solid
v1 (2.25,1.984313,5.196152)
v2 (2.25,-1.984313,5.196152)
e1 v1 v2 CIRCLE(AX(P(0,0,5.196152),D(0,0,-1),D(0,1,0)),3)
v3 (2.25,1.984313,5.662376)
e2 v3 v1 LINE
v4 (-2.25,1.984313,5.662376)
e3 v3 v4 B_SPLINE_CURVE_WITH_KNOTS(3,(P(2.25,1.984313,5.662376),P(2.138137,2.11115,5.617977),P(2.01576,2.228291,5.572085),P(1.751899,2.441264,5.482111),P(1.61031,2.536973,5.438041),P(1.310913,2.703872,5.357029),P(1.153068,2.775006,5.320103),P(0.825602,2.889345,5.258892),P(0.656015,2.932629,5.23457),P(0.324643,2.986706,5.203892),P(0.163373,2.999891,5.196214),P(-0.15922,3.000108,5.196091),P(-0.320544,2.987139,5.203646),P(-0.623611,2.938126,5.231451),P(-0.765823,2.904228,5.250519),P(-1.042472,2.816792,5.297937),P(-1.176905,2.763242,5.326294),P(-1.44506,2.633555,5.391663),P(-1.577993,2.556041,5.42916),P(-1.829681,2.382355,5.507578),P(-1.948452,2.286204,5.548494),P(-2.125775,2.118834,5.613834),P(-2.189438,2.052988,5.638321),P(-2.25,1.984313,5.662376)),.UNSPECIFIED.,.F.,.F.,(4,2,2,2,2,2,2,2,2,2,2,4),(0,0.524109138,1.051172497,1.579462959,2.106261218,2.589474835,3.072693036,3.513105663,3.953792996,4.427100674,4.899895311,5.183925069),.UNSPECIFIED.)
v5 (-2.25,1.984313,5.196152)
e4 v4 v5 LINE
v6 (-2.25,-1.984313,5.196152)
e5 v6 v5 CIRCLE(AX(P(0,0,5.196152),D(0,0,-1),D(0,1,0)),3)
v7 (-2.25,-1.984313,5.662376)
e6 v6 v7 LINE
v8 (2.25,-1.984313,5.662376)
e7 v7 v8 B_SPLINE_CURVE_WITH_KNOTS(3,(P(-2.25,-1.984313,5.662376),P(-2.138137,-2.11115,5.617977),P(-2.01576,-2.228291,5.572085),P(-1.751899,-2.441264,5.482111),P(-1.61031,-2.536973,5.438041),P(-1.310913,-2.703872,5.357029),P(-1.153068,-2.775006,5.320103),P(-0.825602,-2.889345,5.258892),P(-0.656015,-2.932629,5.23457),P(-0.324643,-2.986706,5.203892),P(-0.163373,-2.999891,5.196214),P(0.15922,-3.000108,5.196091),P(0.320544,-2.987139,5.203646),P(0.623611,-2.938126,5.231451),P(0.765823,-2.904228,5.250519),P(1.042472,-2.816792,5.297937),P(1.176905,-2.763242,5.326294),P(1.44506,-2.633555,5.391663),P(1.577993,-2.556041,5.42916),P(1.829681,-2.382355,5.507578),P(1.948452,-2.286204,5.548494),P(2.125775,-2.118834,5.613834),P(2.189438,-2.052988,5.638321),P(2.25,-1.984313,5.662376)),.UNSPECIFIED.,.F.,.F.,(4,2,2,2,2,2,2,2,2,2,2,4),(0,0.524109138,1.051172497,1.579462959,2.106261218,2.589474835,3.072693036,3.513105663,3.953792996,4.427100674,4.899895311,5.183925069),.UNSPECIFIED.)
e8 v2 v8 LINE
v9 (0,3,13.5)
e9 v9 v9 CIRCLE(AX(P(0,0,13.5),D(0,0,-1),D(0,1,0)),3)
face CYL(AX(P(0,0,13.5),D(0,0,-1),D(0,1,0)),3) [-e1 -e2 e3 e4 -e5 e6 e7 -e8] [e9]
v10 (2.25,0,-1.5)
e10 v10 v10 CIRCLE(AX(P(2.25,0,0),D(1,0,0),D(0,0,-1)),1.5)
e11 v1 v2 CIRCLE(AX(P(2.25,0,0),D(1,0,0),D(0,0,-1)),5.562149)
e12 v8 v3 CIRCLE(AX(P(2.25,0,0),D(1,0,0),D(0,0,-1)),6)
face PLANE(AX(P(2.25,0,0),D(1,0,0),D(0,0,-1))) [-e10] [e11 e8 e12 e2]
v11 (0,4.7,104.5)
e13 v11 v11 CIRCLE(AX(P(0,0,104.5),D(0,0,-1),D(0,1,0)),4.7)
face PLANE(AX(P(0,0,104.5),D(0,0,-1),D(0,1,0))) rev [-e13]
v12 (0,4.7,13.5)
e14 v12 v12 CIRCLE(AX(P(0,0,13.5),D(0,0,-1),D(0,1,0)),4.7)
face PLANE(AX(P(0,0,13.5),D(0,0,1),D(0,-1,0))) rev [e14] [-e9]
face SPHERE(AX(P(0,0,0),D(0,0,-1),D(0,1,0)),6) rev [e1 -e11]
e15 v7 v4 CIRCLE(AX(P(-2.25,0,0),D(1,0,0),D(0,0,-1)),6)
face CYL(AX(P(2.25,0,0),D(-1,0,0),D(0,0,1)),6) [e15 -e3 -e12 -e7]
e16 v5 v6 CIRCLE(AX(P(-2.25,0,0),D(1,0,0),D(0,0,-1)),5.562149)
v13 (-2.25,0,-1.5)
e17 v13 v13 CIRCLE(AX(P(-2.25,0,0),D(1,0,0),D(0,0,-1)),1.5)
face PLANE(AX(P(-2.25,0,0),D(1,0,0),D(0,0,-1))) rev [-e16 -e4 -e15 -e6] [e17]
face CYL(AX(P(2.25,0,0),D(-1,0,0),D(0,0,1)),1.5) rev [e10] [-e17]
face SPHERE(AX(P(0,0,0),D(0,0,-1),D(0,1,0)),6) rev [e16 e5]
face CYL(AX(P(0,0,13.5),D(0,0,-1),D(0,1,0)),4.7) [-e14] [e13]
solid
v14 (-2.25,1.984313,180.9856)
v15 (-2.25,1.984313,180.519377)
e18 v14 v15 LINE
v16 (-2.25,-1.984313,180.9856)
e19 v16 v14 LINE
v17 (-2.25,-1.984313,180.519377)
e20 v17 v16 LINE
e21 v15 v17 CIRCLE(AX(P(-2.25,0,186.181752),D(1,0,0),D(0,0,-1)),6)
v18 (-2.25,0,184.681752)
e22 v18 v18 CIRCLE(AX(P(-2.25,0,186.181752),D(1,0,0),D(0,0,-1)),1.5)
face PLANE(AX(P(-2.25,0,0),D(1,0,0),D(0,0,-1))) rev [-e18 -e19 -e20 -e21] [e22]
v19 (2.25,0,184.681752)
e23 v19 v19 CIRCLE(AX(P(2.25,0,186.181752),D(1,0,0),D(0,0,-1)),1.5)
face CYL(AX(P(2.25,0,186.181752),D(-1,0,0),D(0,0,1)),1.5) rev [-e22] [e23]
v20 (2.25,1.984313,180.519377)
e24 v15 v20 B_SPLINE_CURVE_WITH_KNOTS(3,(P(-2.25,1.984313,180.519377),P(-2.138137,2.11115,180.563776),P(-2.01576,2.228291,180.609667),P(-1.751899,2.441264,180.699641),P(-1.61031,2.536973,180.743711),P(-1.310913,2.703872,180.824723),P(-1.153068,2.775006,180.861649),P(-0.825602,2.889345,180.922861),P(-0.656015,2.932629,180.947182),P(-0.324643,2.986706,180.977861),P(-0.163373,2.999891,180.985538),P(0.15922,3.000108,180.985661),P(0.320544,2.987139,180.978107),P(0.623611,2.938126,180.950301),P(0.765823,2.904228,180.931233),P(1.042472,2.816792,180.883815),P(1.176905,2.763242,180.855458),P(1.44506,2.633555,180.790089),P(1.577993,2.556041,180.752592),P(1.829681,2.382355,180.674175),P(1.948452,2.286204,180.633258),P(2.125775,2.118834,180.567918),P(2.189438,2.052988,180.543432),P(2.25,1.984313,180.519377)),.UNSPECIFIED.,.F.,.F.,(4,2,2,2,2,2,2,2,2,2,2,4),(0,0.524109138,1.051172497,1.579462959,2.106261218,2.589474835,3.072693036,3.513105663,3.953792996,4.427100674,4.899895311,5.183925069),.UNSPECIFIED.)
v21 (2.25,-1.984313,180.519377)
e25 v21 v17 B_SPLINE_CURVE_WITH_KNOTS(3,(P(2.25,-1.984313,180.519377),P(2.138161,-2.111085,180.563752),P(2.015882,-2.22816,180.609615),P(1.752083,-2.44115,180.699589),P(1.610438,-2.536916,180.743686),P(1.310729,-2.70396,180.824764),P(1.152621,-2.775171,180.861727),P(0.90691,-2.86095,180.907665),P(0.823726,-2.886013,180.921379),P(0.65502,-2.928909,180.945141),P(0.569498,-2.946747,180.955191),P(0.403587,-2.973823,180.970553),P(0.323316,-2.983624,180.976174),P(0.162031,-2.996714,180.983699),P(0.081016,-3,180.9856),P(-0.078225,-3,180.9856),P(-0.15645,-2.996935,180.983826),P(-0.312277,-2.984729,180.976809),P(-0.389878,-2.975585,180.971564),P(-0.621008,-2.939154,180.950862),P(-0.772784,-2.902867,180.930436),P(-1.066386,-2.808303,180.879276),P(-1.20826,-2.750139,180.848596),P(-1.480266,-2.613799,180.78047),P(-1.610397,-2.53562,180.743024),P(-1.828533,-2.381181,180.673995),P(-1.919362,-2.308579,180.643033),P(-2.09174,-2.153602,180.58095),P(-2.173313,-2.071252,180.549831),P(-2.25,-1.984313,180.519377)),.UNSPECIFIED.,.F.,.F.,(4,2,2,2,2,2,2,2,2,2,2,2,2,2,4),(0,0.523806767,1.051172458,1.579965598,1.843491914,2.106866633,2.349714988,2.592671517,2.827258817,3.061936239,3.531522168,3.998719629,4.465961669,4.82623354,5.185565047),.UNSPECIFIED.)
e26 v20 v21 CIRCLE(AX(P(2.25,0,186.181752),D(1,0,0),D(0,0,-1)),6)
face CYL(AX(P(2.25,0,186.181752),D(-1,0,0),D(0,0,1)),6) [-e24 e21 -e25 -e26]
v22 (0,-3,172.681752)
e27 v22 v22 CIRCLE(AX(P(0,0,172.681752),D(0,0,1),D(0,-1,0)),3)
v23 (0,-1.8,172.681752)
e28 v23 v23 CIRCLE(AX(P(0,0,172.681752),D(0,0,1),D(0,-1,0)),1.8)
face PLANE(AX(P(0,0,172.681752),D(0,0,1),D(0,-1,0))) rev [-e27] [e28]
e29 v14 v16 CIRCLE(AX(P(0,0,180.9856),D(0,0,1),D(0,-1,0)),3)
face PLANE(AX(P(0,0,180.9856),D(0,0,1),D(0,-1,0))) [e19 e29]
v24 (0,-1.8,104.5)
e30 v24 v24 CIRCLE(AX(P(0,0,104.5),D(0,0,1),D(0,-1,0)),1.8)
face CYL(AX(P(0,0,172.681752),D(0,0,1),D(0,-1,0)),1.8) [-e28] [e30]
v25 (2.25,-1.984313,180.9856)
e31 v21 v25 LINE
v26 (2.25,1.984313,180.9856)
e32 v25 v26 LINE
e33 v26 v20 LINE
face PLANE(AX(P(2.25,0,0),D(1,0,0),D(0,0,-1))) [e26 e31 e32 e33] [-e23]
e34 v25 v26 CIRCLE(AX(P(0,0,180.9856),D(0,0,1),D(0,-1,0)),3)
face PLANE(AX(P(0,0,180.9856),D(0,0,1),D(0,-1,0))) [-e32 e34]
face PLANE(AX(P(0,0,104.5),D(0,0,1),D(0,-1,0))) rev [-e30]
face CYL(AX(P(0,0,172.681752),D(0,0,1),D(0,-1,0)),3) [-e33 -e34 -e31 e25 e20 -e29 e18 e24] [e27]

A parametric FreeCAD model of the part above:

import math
import FreeCAD as App
import Part
import Sketcher
Q = App.Units.Quantity

doc = App.newDocument("Part")
params = doc.addObject("Spreadsheet::Sheet", "Params")
for row, (alias, value) in enumerate([
    ("sketch1_diameter", "12 mm"),
    ("sketch1_diameter2", "3 mm"),
    ("pad1_length", "4.5 mm"),
    ("sketch2_radius", "6 mm"),
    ("sketch2_height", "91 mm"),
    ("sketch2_width", "1.7 mm"),
    ("sketch2_width2", "4.7 mm"),
    ("sketch2_height2", "98.5 mm"),
    ("revolution_angle", "360 deg"),
    ("sketch3_diameter", "12 mm"),
    ("sketch3_diameter2", "3 mm"),
    ("pad2_length", "4.5 mm"),
    ("sketch4_width", "3 mm"),
    ("sketch4_width2", "1.8 mm"),
    ("revolution2_angle", "360 deg"),
], start=1):
    params.set(f"A{row}", alias)
    params.set(f"B{row}", "=" + value)
    params.setAlias(f"B{row}", alias)

body = doc.addObject("PartDesign::Body", "Body")

# Sketch on YZ plane
sketch1 = body.newObject("Sketcher::SketchObject", "Sketch")
sketch1.AttachmentSupport = (doc.getObject("YZ_Plane"), [""])
sketch1.MapMode = "FlatFace"
sketch1.addGeometry([
    Part.Circle(App.Vector(0, 0, 0), App.Vector(0, 0, 1), 6),
    Part.Circle(App.Vector(0, 0, 0), App.Vector(0, 0, 1), 1.5),
], False)
sketch1.addConstraint([
    Sketcher.Constraint("Coincident", 0, 3, -1, 1),
    Sketcher.Constraint("Coincident", 1, 3, -1, 1),
    Sketcher.Constraint("Diameter", 0, Q("12 mm")),
    Sketcher.Constraint("Diameter", 1, Q("3 mm")),
])
sketch1.setExpression("Constraints[2]", "Params.sketch1_diameter")
sketch1.setExpression("Constraints[3]", "Params.sketch1_diameter2")
pad1 = body.newObject("PartDesign::Pad", "Pad")
pad1.Profile = sketch1
pad1.setExpression("Length", "Params.pad1_length")
pad1.Midplane = True

# Sketch on YZ plane
sketch2 = body.newObject("Sketcher::SketchObject", "Sketch001")
sketch2.AttachmentSupport = (doc.getObject("YZ_Plane"), [""])
sketch2.MapMode = "FlatFace"
sketch2.addGeometry([
    Part.LineSegment(App.Vector(3, 13.5, 0), App.Vector(4.7, 13.5, 0)),  # 0
    Part.LineSegment(App.Vector(4.7, 13.5, 0), App.Vector(4.7, 104.5, 0)),  # 1
    Part.LineSegment(App.Vector(4.7, 104.5, 0), App.Vector(0, 104.5, 0)),  # 2
    Part.LineSegment(App.Vector(0, 104.5, 0), App.Vector(0, 6, 0)),  # 3
    Part.ArcOfCircle(Part.Circle(App.Vector(0, 0, 0), App.Vector(0, 0, 1), 6), math.radians(60), math.radians(90)),  # 4
    Part.LineSegment(App.Vector(3, 5.196152, 0), App.Vector(3, 13.5, 0)),  # 5
], False)
sketch2.addConstraint([
    Sketcher.Constraint("Coincident", 0, 2, 1, 1),
    Sketcher.Constraint("Coincident", 1, 2, 2, 1),
    Sketcher.Constraint("Coincident", 2, 2, 3, 1),
    Sketcher.Constraint("Coincident", 3, 2, 4, 2),
    Sketcher.Constraint("Coincident", 4, 1, 5, 1),
    Sketcher.Constraint("Coincident", 5, 2, 0, 1),
    Sketcher.Constraint("Horizontal", 0),
    Sketcher.Constraint("Vertical", 1),
    Sketcher.Constraint("Horizontal", 2),
    Sketcher.Constraint("Vertical", 3),
    Sketcher.Constraint("Vertical", 5),
    Sketcher.Constraint("Coincident", 4, 3, -1, 1),
    Sketcher.Constraint("PointOnObject", 2, 2, -2),
    Sketcher.Constraint("Radius", 4, Q("6 mm")),
    Sketcher.Constraint("DistanceY", 1, 1, 1, 2, Q("91 mm")),
    Sketcher.Constraint("DistanceX", 0, 1, 0, 2, Q("1.7 mm")),
    Sketcher.Constraint("DistanceX", 2, 2, 2, 1, Q("4.7 mm")),
    Sketcher.Constraint("DistanceY", 3, 2, 3, 1, Q("98.5 mm")),
])
sketch2.setExpression("Constraints[13]", "Params.sketch2_radius")
sketch2.setExpression("Constraints[14]", "Params.sketch2_height")
sketch2.setExpression("Constraints[15]", "Params.sketch2_width")
sketch2.setExpression("Constraints[16]", "Params.sketch2_width2")
sketch2.setExpression("Constraints[17]", "Params.sketch2_height2")
revolution = body.newObject("PartDesign::Revolution", "Revolution")
revolution.Profile = sketch2
revolution.ReferenceAxis = (sketch2, ["V_Axis"])
revolution.setExpression("Angle", "Params.revolution_angle")
body2 = doc.addObject("PartDesign::Body", "Body001")

# Sketch on YZ plane
sketch3 = body2.newObject("Sketcher::SketchObject", "Sketch002")
sketch3.AttachmentSupport = (doc.getObject("YZ_Plane001"), [""])
sketch3.MapMode = "FlatFace"
sketch3.addGeometry([
    Part.Circle(App.Vector(0, 186.181752, 0), App.Vector(0, 0, 1), 6),
    Part.Circle(App.Vector(0, 186.181752, 0), App.Vector(0, 0, 1), 1.5),
], False)
sketch3.addConstraint([
    Sketcher.Constraint("Coincident", 1, 3, 0, 3),
    Sketcher.Constraint("PointOnObject", 0, 3, -2),
    Sketcher.Constraint("Diameter", 0, Q("12 mm")),
    Sketcher.Constraint("Diameter", 1, Q("3 mm")),
    Sketcher.Constraint("DistanceY", -1, 1, 0, 3, Q("186.181752 mm")),
])
sketch3.setExpression("Constraints[2]", "Params.sketch3_diameter")
sketch3.setExpression("Constraints[3]", "Params.sketch3_diameter2")
pad2 = body2.newObject("PartDesign::Pad", "Pad001")
pad2.Profile = sketch3
pad2.setExpression("Length", "Params.pad2_length")
pad2.Midplane = True
body3 = doc.addObject("PartDesign::Body", "Body002")

# Sketch on YZ plane
sketch4 = body3.newObject("Sketcher::SketchObject", "Sketch003")
sketch4.AttachmentSupport = (doc.getObject("YZ_Plane002"), [""])
sketch4.MapMode = "FlatFace"
sketch4.addGeometry([
    Part.LineSegment(App.Vector(0, 180.9856, 0), App.Vector(0, 104.5, 0)),  # 0
    Part.LineSegment(App.Vector(0, 104.5, 0), App.Vector(1.8, 104.5, 0)),  # 1
    Part.LineSegment(App.Vector(1.8, 104.5, 0), App.Vector(1.8, 172.681752, 0)),  # 2
    Part.LineSegment(App.Vector(1.8, 172.681752, 0), App.Vector(3, 172.681752, 0)),  # 3
    Part.LineSegment(App.Vector(3, 172.681752, 0), App.Vector(3, 180.9856, 0)),  # 4
    Part.LineSegment(App.Vector(3, 180.9856, 0), App.Vector(0, 180.9856, 0)),  # 5
], False)
sketch4.addConstraint([
    Sketcher.Constraint("Coincident", 0, 2, 1, 1),
    Sketcher.Constraint("Coincident", 1, 2, 2, 1),
    Sketcher.Constraint("Coincident", 2, 2, 3, 1),
    Sketcher.Constraint("Coincident", 3, 2, 4, 1),
    Sketcher.Constraint("Coincident", 4, 2, 5, 1),
    Sketcher.Constraint("Coincident", 5, 2, 0, 1),
    Sketcher.Constraint("Vertical", 0),
    Sketcher.Constraint("Horizontal", 1),
    Sketcher.Constraint("Vertical", 2),
    Sketcher.Constraint("Horizontal", 3),
    Sketcher.Constraint("Vertical", 4),
    Sketcher.Constraint("Horizontal", 5),
    Sketcher.Constraint("PointOnObject", 0, 2, -2),
    Sketcher.Constraint("DistanceX", 5, 2, 5, 1, Q("3 mm")),
    Sketcher.Constraint("DistanceX", 1, 1, 1, 2, Q("1.8 mm")),
    Sketcher.Constraint("DistanceY", -1, 1, 0, 2, Q("104.5 mm")),
    Sketcher.Constraint("DistanceY", 0, 2, 0, 1, Q("76.4856 mm")),
    Sketcher.Constraint("DistanceY", 2, 1, 2, 2, Q("68.181752 mm")),
])
sketch4.setExpression("Constraints[13]", "Params.sketch4_width")
sketch4.setExpression("Constraints[14]", "Params.sketch4_width2")
revolution2 = body3.newObject("PartDesign::Revolution", "Revolution001")
revolution2.Profile = sketch4
revolution2.ReferenceAxis = (sketch4, ["V_Axis"])
revolution2.setExpression("Angle", "Params.revolution2_angle")
doc.recompute()

boolean = body3.newObject("PartDesign::Boolean", "Boolean")
boolean.Type = "Fuse"
boolean.addObjects([body2])

doc.recompute()
